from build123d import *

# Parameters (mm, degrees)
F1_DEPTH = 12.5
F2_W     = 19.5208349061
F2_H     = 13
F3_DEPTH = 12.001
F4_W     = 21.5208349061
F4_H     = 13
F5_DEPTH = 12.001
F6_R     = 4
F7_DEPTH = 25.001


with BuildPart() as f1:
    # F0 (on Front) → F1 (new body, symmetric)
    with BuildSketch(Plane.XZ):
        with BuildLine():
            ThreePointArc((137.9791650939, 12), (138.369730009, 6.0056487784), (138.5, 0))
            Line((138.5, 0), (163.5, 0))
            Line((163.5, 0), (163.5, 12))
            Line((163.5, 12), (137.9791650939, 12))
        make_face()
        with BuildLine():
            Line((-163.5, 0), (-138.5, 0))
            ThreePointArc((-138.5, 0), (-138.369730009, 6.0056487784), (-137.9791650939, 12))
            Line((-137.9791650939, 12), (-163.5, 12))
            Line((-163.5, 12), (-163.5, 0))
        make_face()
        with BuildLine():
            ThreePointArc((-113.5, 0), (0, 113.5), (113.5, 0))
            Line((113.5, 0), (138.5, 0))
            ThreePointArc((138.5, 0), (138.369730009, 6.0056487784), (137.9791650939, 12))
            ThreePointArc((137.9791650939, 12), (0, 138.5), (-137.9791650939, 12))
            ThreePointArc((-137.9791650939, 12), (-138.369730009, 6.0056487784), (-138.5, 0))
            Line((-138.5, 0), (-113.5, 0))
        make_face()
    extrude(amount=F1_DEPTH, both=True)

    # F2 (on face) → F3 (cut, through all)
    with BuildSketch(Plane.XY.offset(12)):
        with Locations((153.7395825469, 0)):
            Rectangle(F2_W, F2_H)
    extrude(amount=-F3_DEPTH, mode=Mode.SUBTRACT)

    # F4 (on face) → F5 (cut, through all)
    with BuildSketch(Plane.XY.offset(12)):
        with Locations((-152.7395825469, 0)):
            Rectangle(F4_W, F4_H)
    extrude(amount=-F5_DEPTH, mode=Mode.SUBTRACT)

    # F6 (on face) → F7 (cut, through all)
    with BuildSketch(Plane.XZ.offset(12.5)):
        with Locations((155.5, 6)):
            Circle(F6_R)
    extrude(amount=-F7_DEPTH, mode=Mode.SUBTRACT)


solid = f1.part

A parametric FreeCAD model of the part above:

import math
import FreeCAD as App
import Part
import Sketcher
from FreeCAD import Vector
Q = App.Units.Quantity

doc = App.newDocument("Part")
body = doc.addObject("PartDesign::Body", "Body")

sketch1 = body.newObject("Sketcher::SketchObject", "Sketch")
sketch1.AttachmentSupport = (doc.getObject("XZ_Plane"), [""])
sketch1.MapMode = "FlatFace"
sketch1.addGeometry(Part.LineSegment(Vector(164, 0, 0), Vector(164, 12, 0)), False)
sketch1.addGeometry(Part.LineSegment(Vector(164, 12, 0), Vector(138, 12, 0)), False)
sketch1.addGeometry(Part.ArcOfCircle(Part.Circle(Vector(0, 0, 0), Vector(0, 0, 1), 138), math.radians(5), math.radians(175)), False)
sketch1.addGeometry(Part.LineSegment(Vector(-138, 12, 0), Vector(-164, 12, 0)), False)
sketch1.addGeometry(Part.LineSegment(Vector(-164, 12, 0), Vector(-164, 0, 0)), False)
sketch1.addGeometry(Part.LineSegment(Vector(-164, 0, 0), Vector(-114, 0, 0)), False)
sketch1.addGeometry(Part.ArcOfCircle(Part.Circle(Vector(0, 0, 0), Vector(0, 0, 1), 114), math.radians(0), math.radians(180)), False)
sketch1.addGeometry(Part.LineSegment(Vector(114, 0, 0), Vector(164, 0, 0)), False)
sketch1.addConstraint(Sketcher.Constraint("Coincident", 0, 2, 1, 1))
sketch1.addConstraint(Sketcher.Constraint("Coincident", 1, 2, 2, 1))
sketch1.addConstraint(Sketcher.Constraint("Coincident", 2, 2, 3, 1))
sketch1.addConstraint(Sketcher.Constraint("Coincident", 3, 2, 4, 1))
sketch1.addConstraint(Sketcher.Constraint("Coincident", 4, 2, 5, 1))
sketch1.addConstraint(Sketcher.Constraint("Coincident", 5, 2, 6, 2))
sketch1.addConstraint(Sketcher.Constraint("Coincident", 6, 1, 7, 1))
sketch1.addConstraint(Sketcher.Constraint("Coincident", 7, 2, 0, 1))
sketch1.addConstraint(Sketcher.Constraint("Vertical", 0))
sketch1.addConstraint(Sketcher.Constraint("Horizontal", 1))
sketch1.addConstraint(Sketcher.Constraint("Horizontal", 3))
sketch1.addConstraint(Sketcher.Constraint("Vertical", 4))
sketch1.addConstraint(Sketcher.Constraint("Horizontal", 5))
sketch1.addConstraint(Sketcher.Constraint("Horizontal", 7))
sketch1.addConstraint(Sketcher.Constraint("Coincident", 2, 3, -1, 1))
sketch1.addConstraint(Sketcher.Constraint("Coincident", 6, 3, -1, 1))
sketch1.addConstraint(Sketcher.Constraint("Symmetric", 4, 2, 7, 2, -1, 1))
sketch1.addConstraint(Sketcher.Constraint("PointOnObject", 4, 2, -1))
sketch1.addConstraint(Sketcher.Constraint("Horizontal", 1, 2, 2, 2))
sketch1.addConstraint(Sketcher.Constraint("Radius", 2, Q("138.5 mm")))
sketch1.addConstraint(Sketcher.Constraint("Radius", 6, Q("113.5 mm")))
sketch1.addConstraint(Sketcher.Constraint("DistanceX", 5, 1, 5, 2, Q("50 mm")))
sketch1.addConstraint(Sketcher.Constraint("DistanceY", 0, 1, 0, 2, Q("12 mm")))
pad1 = body.newObject("PartDesign::Pad", "Pad")
pad1.Profile = sketch1
pad1.Length = 25
pad1.Midplane = True

sketch2 = body.newObject("Sketcher::SketchObject", "Sketch001")
sketch2.AttachmentSupport = (doc.getObject("XY_Plane"), [""])
sketch2.MapMode = "FlatFace"
sketch2.AttachmentOffset = App.Placement(Vector(0, 0, 12), App.Rotation())
sketch2.addGeometry(Part.LineSegment(Vector(144, 6, 0), Vector(144, -6, 0)), False)
sketch2.addGeometry(Part.LineSegment(Vector(144, -6, 0), Vector(164, -6, 0)), False)
sketch2.addGeometry(Part.LineSegment(Vector(164, -6, 0), Vector(164, 6, 0)), False)
sketch2.addGeometry(Part.LineSegment(Vector(164, 6, 0), Vector(144, 6, 0)), False)
sketch2.addConstraint(Sketcher.Constraint("Coincident", 0, 2, 1, 1))
sketch2.addConstraint(Sketcher.Constraint("Coincident", 1, 2, 2, 1))
sketch2.addConstraint(Sketcher.Constraint("Coincident", 2, 2, 3, 1))
sketch2.addConstraint(Sketcher.Constraint("Coincident", 3, 2, 0, 1))
sketch2.addConstraint(Sketcher.Constraint("Vertical", 0))
sketch2.addConstraint(Sketcher.Constraint("Horizontal", 1))
sketch2.addConstraint(Sketcher.Constraint("Vertical", 2))
sketch2.addConstraint(Sketcher.Constraint("Horizontal", 3))
sketch2.addConstraint(Sketcher.Constraint("DistanceY", 0, 2, 0, 1, Q("13 mm")))
sketch2.addConstraint(Sketcher.Constraint("DistanceY", 0, 2, -1, 1, Q("6.5 mm")))
sketch2.addConstraint(Sketcher.Constraint("DistanceX", -1, 1, 1, 2, Q("163.5 mm")))
sketch2.addConstraint(Sketcher.Constraint("DistanceX", 1, 1, 1, 2, Q("19.520835 mm")))
pocket1 = body.newObject("PartDesign::Pocket", "Pocket")
pocket1.Profile = sketch2
pocket1.Type = "ThroughAll"

sketch3 = body.newObject("Sketcher::SketchObject", "Sketch002")
sketch3.AttachmentSupport = (doc.getObject("XY_Plane"), [""])
sketch3.MapMode = "FlatFace"
sketch3.AttachmentOffset = App.Placement(Vector(0, 0, 12), App.Rotation())
sketch3.addGeometry(Part.LineSegment(Vector(-164, 6, 0), Vector(-164, -6, 0)), False)
sketch3.addGeometry(Part.LineSegment(Vector(-164, -6, 0), Vector(-142, -6, 0)), False)
sketch3.addGeometry(Part.LineSegment(Vector(-142, -6, 0), Vector(-142, 6, 0)), False)
sketch3.addGeometry(Part.LineSegment(Vector(-142, 6, 0), Vector(-164, 6, 0)), False)
sketch3.addConstraint(Sketcher.Constraint("Coincident", 0, 2, 1, 1))
sketch3.addConstraint(Sketcher.Constraint("Coincident", 1, 2, 2, 1))
sketch3.addConstraint(Sketcher.Constraint("Coincident", 2, 2, 3, 1))
sketch3.addConstraint(Sketcher.Constraint("Coincident", 3, 2, 0, 1))
sketch3.addConstraint(Sketcher.Constraint("Vertical", 0))
sketch3.addConstraint(Sketcher.Constraint("Horizontal", 1))
sketch3.addConstraint(Sketcher.Constraint("Vertical", 2))
sketch3.addConstraint(Sketcher.Constraint("Horizontal", 3))
sketch3.addConstraint(Sketcher.Constraint("DistanceY", 0, 2, 0, 1, Q("13 mm")))
sketch3.addConstraint(Sketcher.Constraint("DistanceX", 0, 2, -1, 1, Q("163.5 mm")))
sketch3.addConstraint(Sketcher.Constraint("DistanceY", 0, 2, -1, 1, Q("6.5 mm")))
sketch3.addConstraint(Sketcher.Constraint("DistanceX", 1, 1, 1, 2, Q("21.520835 mm")))
pocket2 = body.newObject("PartDesign::Pocket", "Pocket001")
pocket2.Profile = sketch3
pocket2.Type = "ThroughAll"

sketch4 = body.newObject("Sketcher::SketchObject", "Sketch003")
sketch4.AttachmentSupport = (doc.getObject("XZ_Plane"), [""])
sketch4.MapMode = "FlatFace"
sketch4.AttachmentOffset = App.Placement(Vector(0, 0, 12.5), App.Rotation())
sketch4.addGeometry(Part.Circle(Vector(155.5, 6, 0), Vector(0, 0, 1), 4), False)
sketch4.addConstraint(Sketcher.Constraint("Diameter", 0, Q("8 mm")))
sketch4.addConstraint(Sketcher.Constraint("DistanceY", -1, 1, 0, 3, Q("6 mm")))
sketch4.addConstraint(Sketcher.Constraint("DistanceX", -1, 1, 0, 3, Q("155.5 mm")))
pocket3 = body.newObject("PartDesign::Pocket", "Pocket002")
pocket3.Profile = sketch4
pocket3.Type = "ThroughAll"

doc.recompute()
